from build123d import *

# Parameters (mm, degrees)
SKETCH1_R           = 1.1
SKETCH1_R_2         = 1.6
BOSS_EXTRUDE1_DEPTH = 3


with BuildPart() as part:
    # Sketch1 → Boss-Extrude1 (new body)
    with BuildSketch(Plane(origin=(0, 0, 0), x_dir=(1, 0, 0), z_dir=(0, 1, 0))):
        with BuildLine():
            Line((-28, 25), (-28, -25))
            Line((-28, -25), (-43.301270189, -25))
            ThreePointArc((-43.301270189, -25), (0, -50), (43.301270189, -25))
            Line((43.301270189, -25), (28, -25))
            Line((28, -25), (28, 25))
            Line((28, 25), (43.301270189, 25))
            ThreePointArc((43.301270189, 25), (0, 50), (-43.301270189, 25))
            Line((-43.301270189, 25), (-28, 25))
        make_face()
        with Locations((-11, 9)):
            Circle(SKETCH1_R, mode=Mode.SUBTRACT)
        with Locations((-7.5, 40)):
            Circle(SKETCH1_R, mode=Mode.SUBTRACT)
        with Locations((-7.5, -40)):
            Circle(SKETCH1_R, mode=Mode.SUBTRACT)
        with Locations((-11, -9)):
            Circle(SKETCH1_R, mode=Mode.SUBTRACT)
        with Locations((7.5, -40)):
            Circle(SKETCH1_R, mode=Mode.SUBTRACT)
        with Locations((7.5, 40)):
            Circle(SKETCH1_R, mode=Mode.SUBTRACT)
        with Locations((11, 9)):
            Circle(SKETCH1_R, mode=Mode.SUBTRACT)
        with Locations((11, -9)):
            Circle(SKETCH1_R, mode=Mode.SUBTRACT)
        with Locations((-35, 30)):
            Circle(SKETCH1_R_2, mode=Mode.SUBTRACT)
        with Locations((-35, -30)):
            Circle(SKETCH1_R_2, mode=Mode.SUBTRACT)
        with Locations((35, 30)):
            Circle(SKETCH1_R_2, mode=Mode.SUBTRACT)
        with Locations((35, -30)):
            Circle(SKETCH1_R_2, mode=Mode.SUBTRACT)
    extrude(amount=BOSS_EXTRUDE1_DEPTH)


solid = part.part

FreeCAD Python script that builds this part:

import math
import FreeCAD as App
import Part
import Sketcher

doc = App.newDocument("Part")
params = doc.addObject("Spreadsheet::Sheet", "Params")
for row, (alias, value) in enumerate([
    ("sketch1_radius", "50 mm"),
    ("sketch1_diameter", "3.2 mm"),
    ("sketch1_diameter2", "2.2 mm"),
    ("sketch1_height", "50 mm"),
    ("pad1_length", "3 mm"),
], start=1):
    params.set(f"A{row}", alias)
    params.set(f"B{row}", "=" + value)
    params.setAlias(f"B{row}", alias)

body = doc.addObject("PartDesign::Body", "Body")

sketch1 = body.newObject("Sketcher::SketchObject", "Sketch")
sketch1.AttachmentSupport = (doc.getObject("XZ_Plane"), [""])
sketch1.MapMode = "FlatFace"
sketch1.addGeometry([
    Part.LineSegment(App.Vector(-28, -25, 0), App.Vector(-28, 25, 0)),
    Part.LineSegment(App.Vector(-28, 25, 0), App.Vector(-43.3, 25, 0)),
    Part.ArcOfCircle(Part.Circle(App.Vector(0, 0, 0), App.Vector(0, 0, 1), 50), math.radians(30), math.radians(150)),
    Part.LineSegment(App.Vector(43.3, 25, 0), App.Vector(28, 25, 0)),
    Part.LineSegment(App.Vector(28, 25, 0), App.Vector(28, -25, 0)),
    Part.LineSegment(App.Vector(28, -25, 0), App.Vector(43.3, -25, 0)),
    Part.ArcOfCircle(Part.Circle(App.Vector(0, 0, 0), App.Vector(0, 0, 1), 50), math.radians(-150), math.radians(-30)),
    Part.LineSegment(App.Vector(-43.3, -25, 0), App.Vector(-28, -25, 0)),
    Part.Circle(App.Vector(-35, 30, 0), App.Vector(0, 0, 1), 1.6),
    Part.Circle(App.Vector(-7.5, 40, 0), App.Vector(0, 0, 1), 1.1),
    Part.Circle(App.Vector(-11, 9, 0), App.Vector(0, 0, 1), 1.1),
    Part.Circle(App.Vector(7.5, 40, 0), App.Vector(0, 0, 1), 1.1),
    Part.Circle(App.Vector(35, 30, 0), App.Vector(0, 0, 1), 1.6),
    Part.Circle(App.Vector(11, 9, 0), App.Vector(0, 0, 1), 1.1),
    Part.Circle(App.Vector(-11, -9, 0), App.Vector(0, 0, 1), 1.1),
    Part.Circle(App.Vector(-35, -30, 0), App.Vector(0, 0, 1), 1.6),
    Part.Circle(App.Vector(-7.5, -40, 0), App.Vector(0, 0, 1), 1.1),
    Part.Circle(App.Vector(11, -9, 0), App.Vector(0, 0, 1), 1.1),
    Part.Circle(App.Vector(7.5, -40, 0), App.Vector(0, 0, 1), 1.1),
    Part.Circle(App.Vector(35, -30, 0), App.Vector(0, 0, 1), 1.6),
], False)
sketch1.addConstraint([
    Sketcher.Constraint("Coincident", 0, 2, 1, 1),
    Sketcher.Constraint("Coincident", 1, 2, 2, 2),
    Sketcher.Constraint("Coincident", 2, 1, 3, 1),
    Sketcher.Constraint("Coincident", 3, 2, 4, 1),
    Sketcher.Constraint("Coincident", 4, 2, 5, 1),
    Sketcher.Constraint("Coincident", 5, 2, 6, 2),
    Sketcher.Constraint("Coincident", 6, 1, 7, 1),
    Sketcher.Constraint("Coincident", 7, 2, 0, 1),
    Sketcher.Constraint("Vertical", 0),
    Sketcher.Constraint("Horizontal", 1),
    Sketcher.Constraint("Horizontal", 3),
    Sketcher.Constraint("Vertical", 4),
    Sketcher.Constraint("Horizontal", 5),
    Sketcher.Constraint("Horizontal", 7),
    Sketcher.Constraint("Coincident", 2, 3, -1, 1),
    Sketcher.Constraint("Coincident", 6, 3, -1, 1),
    Sketcher.Constraint("Equal", 2, 6),
    Sketcher.Constraint("Equal", 9, 10),
    Sketcher.Constraint("Equal", 10, 11),
    Sketcher.Constraint("Equal", 8, 12),
    Sketcher.Constraint("Equal", 11, 13),
    Sketcher.Constraint("Equal", 13, 14),
    Sketcher.Constraint("Equal", 12, 15),
    Sketcher.Constraint("Equal", 14, 16),
    Sketcher.Constraint("Equal", 16, 17),
    Sketcher.Constraint("Equal", 17, 18),
    Sketcher.Constraint("Equal", 15, 19),
    Sketcher.Constraint("Symmetric", 13, 3, 14, 3, -1, 1),
    Sketcher.Constraint("Symmetric", 12, 3, 15, 3, -1, 1),
    Sketcher.Constraint("Symmetric", 11, 3, 16, 3, -1, 1),
    Sketcher.Constraint("Symmetric", 10, 3, 17, 3, -1, 1),
    Sketcher.Constraint("Symmetric", 9, 3, 18, 3, -1, 1),
    Sketcher.Constraint("Symmetric", 8, 3, 19, 3, -1, 1),
    Sketcher.Constraint("Symmetric", 0, 2, 4, 2, -1, 1),
    Sketcher.Constraint("Symmetric", 9, 3, 11, 3, -2),
    Sketcher.Constraint("Symmetric", 8, 3, 12, 3, -2),
    Sketcher.Constraint("Symmetric", 10, 3, 13, 3, -2),
    Sketcher.Constraint("Horizontal", 1, 2, 2, 1),
    Sketcher.Constraint("Horizontal", 5, 2, 6, 1),
    Sketcher.Constraint("Radius", 2, 50.0),
    Sketcher.Constraint("Diameter", 8, 3.2),
    Sketcher.Constraint("Diameter", 9, 2.2),
    Sketcher.Constraint("DistanceY", 0, 1, 0, 2, 50.0),
    Sketcher.Constraint("DistanceX", 8, 3, -1, 1, 35.0),
    Sketcher.Constraint("DistanceY", -1, 1, 8, 3, 30.0),
    Sketcher.Constraint("DistanceY", -1, 1, 9, 3, 40.0),
    Sketcher.Constraint("DistanceX", 10, 3, -1, 1, 11.0),
    Sketcher.Constraint("DistanceY", -1, 1, 10, 3, 9.0),
    Sketcher.Constraint("DistanceX", 0, 2, -1, 1, 28.0),
    Sketcher.Constraint("DistanceX", 9, 3, 11, 3, 15.0),
])
sketch1.setExpression("Constraints[39]", "Params.sketch1_radius")
sketch1.setExpression("Constraints[40]", "Params.sketch1_diameter")
sketch1.setExpression("Constraints[41]", "Params.sketch1_diameter2")
sketch1.setExpression("Constraints[42]", "Params.sketch1_height")
pad1 = body.newObject("PartDesign::Pad", "Pad")
pad1.Profile = sketch1
pad1.setExpression("Length", "Params.pad1_length")
pad1.Reversed = True

doc.recompute()
